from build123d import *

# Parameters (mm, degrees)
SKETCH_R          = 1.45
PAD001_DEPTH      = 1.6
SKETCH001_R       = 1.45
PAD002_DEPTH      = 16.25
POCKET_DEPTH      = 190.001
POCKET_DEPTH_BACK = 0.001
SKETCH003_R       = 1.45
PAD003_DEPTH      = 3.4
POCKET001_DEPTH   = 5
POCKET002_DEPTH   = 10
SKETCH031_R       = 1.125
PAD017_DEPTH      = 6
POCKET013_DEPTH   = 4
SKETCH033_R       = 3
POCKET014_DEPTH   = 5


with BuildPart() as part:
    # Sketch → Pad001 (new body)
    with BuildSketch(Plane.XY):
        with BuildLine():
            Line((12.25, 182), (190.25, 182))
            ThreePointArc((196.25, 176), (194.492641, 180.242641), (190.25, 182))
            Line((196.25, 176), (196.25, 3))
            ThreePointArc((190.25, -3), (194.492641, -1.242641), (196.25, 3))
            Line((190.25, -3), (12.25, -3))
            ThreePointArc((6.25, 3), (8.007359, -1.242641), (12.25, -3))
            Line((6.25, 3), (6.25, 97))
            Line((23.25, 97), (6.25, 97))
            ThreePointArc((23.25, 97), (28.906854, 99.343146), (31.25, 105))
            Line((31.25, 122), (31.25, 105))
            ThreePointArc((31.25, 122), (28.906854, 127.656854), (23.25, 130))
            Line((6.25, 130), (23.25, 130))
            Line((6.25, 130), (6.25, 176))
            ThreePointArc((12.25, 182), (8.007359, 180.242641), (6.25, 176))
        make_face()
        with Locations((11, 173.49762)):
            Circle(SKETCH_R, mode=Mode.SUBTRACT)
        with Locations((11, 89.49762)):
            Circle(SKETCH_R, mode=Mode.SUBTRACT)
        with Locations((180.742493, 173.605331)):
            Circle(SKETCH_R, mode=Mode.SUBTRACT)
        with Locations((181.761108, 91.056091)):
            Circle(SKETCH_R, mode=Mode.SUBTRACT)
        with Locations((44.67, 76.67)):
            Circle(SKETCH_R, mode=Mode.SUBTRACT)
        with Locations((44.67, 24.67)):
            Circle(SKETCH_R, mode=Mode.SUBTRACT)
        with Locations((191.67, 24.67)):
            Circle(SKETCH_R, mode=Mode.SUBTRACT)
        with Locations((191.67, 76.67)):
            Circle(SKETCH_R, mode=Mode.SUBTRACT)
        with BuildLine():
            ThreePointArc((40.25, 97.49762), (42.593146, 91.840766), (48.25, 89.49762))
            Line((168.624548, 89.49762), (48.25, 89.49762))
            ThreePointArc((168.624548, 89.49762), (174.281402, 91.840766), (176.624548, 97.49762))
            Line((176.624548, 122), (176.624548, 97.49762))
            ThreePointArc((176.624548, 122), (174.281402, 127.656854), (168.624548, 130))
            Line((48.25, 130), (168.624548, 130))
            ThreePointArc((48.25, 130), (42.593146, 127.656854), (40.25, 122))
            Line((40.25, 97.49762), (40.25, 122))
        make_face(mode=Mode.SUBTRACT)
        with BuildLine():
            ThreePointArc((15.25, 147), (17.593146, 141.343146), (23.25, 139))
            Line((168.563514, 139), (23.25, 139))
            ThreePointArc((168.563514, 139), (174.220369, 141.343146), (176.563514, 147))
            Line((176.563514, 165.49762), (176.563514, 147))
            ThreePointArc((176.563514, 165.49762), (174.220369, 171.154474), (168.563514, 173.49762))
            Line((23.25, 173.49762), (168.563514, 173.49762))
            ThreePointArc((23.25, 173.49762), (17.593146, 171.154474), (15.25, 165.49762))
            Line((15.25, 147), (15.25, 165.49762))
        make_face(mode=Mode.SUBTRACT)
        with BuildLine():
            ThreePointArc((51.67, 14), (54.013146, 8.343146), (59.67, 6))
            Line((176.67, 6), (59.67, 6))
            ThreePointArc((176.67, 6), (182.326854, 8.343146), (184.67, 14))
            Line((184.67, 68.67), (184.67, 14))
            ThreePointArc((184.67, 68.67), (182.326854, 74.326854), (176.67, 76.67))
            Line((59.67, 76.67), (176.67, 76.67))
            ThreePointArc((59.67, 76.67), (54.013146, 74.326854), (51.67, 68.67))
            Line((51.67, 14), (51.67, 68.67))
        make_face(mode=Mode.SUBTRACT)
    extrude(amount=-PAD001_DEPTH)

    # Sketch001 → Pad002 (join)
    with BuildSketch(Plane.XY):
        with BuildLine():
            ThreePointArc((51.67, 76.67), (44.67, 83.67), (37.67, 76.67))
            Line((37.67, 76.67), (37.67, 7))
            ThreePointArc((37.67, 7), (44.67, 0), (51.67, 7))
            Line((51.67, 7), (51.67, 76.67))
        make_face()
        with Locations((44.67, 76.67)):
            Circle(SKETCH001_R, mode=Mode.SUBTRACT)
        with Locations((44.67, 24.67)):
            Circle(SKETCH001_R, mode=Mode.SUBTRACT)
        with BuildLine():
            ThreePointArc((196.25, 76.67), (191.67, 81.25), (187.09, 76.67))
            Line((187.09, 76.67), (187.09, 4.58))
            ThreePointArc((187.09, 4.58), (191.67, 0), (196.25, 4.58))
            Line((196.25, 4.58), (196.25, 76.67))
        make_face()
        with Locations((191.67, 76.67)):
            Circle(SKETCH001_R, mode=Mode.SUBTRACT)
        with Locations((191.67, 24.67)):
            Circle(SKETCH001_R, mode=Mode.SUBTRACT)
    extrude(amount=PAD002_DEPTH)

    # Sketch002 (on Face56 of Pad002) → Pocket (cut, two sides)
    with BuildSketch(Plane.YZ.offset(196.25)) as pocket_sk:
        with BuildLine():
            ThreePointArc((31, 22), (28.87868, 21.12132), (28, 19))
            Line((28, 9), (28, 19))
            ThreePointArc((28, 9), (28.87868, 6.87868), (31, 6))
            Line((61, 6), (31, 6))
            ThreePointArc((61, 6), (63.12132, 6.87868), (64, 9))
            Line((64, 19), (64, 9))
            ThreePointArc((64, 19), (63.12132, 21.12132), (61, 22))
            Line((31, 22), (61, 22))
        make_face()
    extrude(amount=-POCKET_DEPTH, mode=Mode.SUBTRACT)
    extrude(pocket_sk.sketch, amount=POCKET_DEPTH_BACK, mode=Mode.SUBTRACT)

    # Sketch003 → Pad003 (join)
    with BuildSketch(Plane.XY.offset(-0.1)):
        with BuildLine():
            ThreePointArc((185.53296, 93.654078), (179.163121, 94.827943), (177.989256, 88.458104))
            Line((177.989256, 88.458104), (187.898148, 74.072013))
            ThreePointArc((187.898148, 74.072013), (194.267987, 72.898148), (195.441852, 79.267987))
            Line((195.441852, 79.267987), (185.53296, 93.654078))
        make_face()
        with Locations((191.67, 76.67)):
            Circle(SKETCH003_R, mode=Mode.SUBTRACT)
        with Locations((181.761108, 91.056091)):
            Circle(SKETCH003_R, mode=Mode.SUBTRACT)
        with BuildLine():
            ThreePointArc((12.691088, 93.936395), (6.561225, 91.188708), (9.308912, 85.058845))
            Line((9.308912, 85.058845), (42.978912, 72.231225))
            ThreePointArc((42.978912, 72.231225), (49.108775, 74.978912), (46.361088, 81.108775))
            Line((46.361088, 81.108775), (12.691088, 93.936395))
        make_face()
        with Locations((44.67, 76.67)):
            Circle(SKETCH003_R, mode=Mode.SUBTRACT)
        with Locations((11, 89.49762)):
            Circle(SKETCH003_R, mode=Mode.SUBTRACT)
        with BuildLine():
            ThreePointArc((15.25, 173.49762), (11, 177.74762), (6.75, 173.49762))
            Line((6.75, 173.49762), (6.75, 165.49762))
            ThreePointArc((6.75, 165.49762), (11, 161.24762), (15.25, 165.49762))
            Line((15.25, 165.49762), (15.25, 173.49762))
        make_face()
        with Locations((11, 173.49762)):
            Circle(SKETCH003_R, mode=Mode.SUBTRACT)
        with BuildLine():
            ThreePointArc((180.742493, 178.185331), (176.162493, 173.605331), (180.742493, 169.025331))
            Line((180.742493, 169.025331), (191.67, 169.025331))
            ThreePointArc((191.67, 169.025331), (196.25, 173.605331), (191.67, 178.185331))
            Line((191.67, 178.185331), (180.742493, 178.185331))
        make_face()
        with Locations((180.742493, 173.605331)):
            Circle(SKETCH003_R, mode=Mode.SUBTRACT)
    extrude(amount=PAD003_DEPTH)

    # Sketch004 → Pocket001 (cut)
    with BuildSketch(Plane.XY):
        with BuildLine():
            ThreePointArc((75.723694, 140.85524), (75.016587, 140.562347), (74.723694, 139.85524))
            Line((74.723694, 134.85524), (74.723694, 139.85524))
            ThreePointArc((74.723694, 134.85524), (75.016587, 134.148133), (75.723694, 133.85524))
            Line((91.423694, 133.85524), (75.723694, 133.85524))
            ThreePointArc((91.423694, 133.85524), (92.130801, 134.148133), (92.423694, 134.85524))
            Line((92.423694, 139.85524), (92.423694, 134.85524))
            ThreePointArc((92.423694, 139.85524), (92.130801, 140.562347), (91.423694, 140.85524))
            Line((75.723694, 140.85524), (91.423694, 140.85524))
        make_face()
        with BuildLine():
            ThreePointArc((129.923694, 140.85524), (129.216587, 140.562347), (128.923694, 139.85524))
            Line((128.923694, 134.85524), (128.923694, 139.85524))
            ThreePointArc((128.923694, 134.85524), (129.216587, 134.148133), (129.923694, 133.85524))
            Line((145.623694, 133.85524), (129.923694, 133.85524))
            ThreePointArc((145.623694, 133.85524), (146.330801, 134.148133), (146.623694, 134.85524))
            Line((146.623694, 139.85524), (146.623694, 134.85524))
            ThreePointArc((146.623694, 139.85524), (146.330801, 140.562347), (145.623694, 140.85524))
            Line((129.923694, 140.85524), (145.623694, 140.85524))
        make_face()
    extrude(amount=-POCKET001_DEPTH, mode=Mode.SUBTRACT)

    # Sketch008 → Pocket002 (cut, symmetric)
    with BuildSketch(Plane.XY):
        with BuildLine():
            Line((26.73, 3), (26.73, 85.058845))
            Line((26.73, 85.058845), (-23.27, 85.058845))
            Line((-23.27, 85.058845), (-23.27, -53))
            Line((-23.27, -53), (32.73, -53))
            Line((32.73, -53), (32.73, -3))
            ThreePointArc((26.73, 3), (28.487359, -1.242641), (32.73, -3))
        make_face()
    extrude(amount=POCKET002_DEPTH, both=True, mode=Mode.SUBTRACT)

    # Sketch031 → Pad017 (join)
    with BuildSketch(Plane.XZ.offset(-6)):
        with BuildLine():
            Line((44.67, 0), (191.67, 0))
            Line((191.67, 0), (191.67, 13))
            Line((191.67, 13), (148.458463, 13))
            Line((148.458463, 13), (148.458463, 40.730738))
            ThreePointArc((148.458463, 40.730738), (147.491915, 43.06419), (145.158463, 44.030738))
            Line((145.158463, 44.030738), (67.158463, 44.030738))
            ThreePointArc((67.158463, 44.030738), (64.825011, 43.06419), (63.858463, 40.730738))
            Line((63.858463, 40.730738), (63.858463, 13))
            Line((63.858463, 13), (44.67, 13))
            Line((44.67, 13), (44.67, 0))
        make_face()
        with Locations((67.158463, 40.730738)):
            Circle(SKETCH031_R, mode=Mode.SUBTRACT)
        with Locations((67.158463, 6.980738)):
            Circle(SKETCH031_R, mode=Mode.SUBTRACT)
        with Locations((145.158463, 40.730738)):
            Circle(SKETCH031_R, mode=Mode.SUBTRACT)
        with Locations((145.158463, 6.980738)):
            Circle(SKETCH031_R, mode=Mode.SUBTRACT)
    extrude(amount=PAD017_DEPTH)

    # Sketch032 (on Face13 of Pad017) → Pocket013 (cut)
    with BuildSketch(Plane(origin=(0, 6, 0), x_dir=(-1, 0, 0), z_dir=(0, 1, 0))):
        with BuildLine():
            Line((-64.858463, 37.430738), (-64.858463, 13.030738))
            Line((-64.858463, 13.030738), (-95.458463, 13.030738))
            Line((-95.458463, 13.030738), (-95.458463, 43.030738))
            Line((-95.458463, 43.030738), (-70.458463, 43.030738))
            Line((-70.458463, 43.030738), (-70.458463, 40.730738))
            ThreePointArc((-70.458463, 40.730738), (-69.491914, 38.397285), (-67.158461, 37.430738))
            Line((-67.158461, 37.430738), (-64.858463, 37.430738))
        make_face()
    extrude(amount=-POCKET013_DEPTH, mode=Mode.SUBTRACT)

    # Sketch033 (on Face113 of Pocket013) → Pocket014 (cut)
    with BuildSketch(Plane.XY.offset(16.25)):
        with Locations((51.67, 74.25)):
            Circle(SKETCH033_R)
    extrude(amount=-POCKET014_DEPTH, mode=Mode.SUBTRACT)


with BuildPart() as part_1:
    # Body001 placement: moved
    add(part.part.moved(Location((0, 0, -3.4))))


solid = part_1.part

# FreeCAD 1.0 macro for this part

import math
import FreeCAD as App
import Part
import Sketcher
from FreeCAD import Vector

doc = App.newDocument("Part")
body = doc.addObject("PartDesign::Body", "Body")

# Sketch on XY plane
sketch1 = doc.addObject("Sketcher::SketchObject", "Sketch")
body.addObject(sketch1)
sketch1.AttachmentSupport = (doc.XY_Plane, [""])
sketch1.MapMode = "FlatFace"
sketch1.addGeometry(Part.LineSegment(Vector(190.2, 182, 0), Vector(12.2, 182, 0)), False)
sketch1.addGeometry(Part.ArcOfCircle(Part.Circle(Vector(12.2, 176, 0), Vector(0, 0, 1), 6), math.radians(90), math.radians(180)), False)
sketch1.addGeometry(Part.LineSegment(Vector(6.2, 176, 0), Vector(6.2, 130, 0)), False)
sketch1.addGeometry(Part.LineSegment(Vector(6.2, 130, 0), Vector(23.2, 130, 0)), False)
sketch1.addGeometry(Part.ArcOfCircle(Part.Circle(Vector(23.2, 122, 0), Vector(0, 0, 1), 8), math.radians(0), math.radians(90)), False)
sketch1.addGeometry(Part.LineSegment(Vector(31.2, 122, 0), Vector(31.2, 105, 0)), False)
sketch1.addGeometry(Part.ArcOfCircle(Part.Circle(Vector(23.2, 105, 0), Vector(0, 0, 1), 8), math.radians(-90), math.radians(0)), False)
sketch1.addGeometry(Part.LineSegment(Vector(23.2, 97, 0), Vector(6.2, 97, 0)), False)
sketch1.addGeometry(Part.LineSegment(Vector(6.2, 97, 0), Vector(6.2, 3, 0)), False)
sketch1.addGeometry(Part.ArcOfCircle(Part.Circle(Vector(12.2, 3, 0), Vector(0, 0, 1), 6), math.radians(180), math.radians(270)), False)
sketch1.addGeometry(Part.LineSegment(Vector(12.2, -3, 0), Vector(190.2, -3, 0)), False)
sketch1.addGeometry(Part.ArcOfCircle(Part.Circle(Vector(190.3, 3, 0), Vector(0, 0, 1), 6), math.radians(-90), math.radians(0)), False)
sketch1.addGeometry(Part.LineSegment(Vector(196.2, 3, 0), Vector(196.2, 176, 0)), False)
sketch1.addGeometry(Part.ArcOfCircle(Part.Circle(Vector(190.3, 176, 0), Vector(0, 0, 1), 6), math.radians(0), math.radians(90)), False)
sketch1.addGeometry(Part.Circle(Vector(191.7, 24.7, 0), Vector(0, 0, 1), 1.4), False)
sketch1.addGeometry(Part.LineSegment(Vector(51.7, 14, 0), Vector(51.7, 68.7, 0)), False)
sketch1.addGeometry(Part.ArcOfCircle(Part.Circle(Vector(59.7, 68.7, 0), Vector(0, 0, 1), 8), math.radians(90), math.radians(180)), False)
sketch1.addGeometry(Part.LineSegment(Vector(59.7, 76.7, 0), Vector(176.7, 76.7, 0)), False)
sketch1.addGeometry(Part.ArcOfCircle(Part.Circle(Vector(176.7, 68.7, 0), Vector(0, 0, 1), 8), math.radians(0), math.radians(90)), False)
sketch1.addGeometry(Part.LineSegment(Vector(184.7, 68.7, 0), Vector(184.7, 14, 0)), False)
sketch1.addGeometry(Part.ArcOfCircle(Part.Circle(Vector(176.7, 14, 0), Vector(0, 0, 1), 8), math.radians(-90), math.radians(0)), False)
sketch1.addGeometry(Part.LineSegment(Vector(176.7, 6, 0), Vector(59.7, 6, 0)), False)
sketch1.addGeometry(Part.ArcOfCircle(Part.Circle(Vector(59.7, 14, 0), Vector(0, 0, 1), 8), math.radians(-180), math.radians(-90)), False)
sketch1.addGeometry(Part.Circle(Vector(191.7, 76.7, 0), Vector(0, 0, 1), 1.4), False)
sketch1.addGeometry(Part.Circle(Vector(44.7, 24.7, 0), Vector(0, 0, 1), 1.4), False)
sketch1.addGeometry(Part.Circle(Vector(44.7, 76.7, 0), Vector(0, 0, 1), 1.4), False)
sketch1.addGeometry(Part.Circle(Vector(11, 89.5, 0), Vector(0, 0, 1), 1.4), False)
sketch1.addGeometry(Part.Circle(Vector(181.8, 91.1, 0), Vector(0, 0, 1), 1.4), False)
sketch1.addGeometry(Part.LineSegment(Vector(40.2, 97.5, 0), Vector(40.2, 122, 0)), False)
sketch1.addGeometry(Part.ArcOfCircle(Part.Circle(Vector(48.3, 122, 0), Vector(0, 0, 1), 8), math.radians(90), math.radians(180)), False)
sketch1.addGeometry(Part.LineSegment(Vector(48.2, 130, 0), Vector(168.6, 130, 0)), False)
sketch1.addGeometry(Part.ArcOfCircle(Part.Circle(Vector(168.6, 122, 0), Vector(0, 0, 1), 8), math.radians(0), math.radians(90)), False)
sketch1.addGeometry(Part.LineSegment(Vector(176.6, 122, 0), Vector(176.6, 97.5, 0)), False)
sketch1.addGeometry(Part.ArcOfCircle(Part.Circle(Vector(168.6, 97.5, 0), Vector(0, 0, 1), 8), math.radians(-90), math.radians(0)), False)
sketch1.addGeometry(Part.LineSegment(Vector(168.6, 89.5, 0), Vector(48.2, 89.5, 0)), False)
sketch1.addGeometry(Part.ArcOfCircle(Part.Circle(Vector(48.3, 97.5, 0), Vector(0, 0, 1), 8), math.radians(-180), math.radians(-90)), False)
sketch1.addGeometry(Part.Circle(Vector(180.7, 173.6, 0), Vector(0, 0, 1), 1.4), False)
sketch1.addGeometry(Part.LineSegment(Vector(15.2, 147, 0), Vector(15.2, 165.5, 0)), False)
sketch1.addGeometry(Part.ArcOfCircle(Part.Circle(Vector(23.3, 165.5, 0), Vector(0, 0, 1), 8), math.radians(90), math.radians(180)), False)
sketch1.addGeometry(Part.LineSegment(Vector(23.2, 173.5, 0), Vector(168.6, 173.5, 0)), False)
sketch1.addGeometry(Part.ArcOfCircle(Part.Circle(Vector(168.6, 165.5, 0), Vector(0, 0, 1), 8), math.radians(0), math.radians(90)), False)
sketch1.addGeometry(Part.LineSegment(Vector(176.6, 165.5, 0), Vector(176.6, 147, 0)), False)
sketch1.addGeometry(Part.ArcOfCircle(Part.Circle(Vector(168.6, 147, 0), Vector(0, 0, 1), 8), math.radians(-90), math.radians(0)), False)
sketch1.addGeometry(Part.LineSegment(Vector(168.6, 139, 0), Vector(23.2, 139, 0)), False)
sketch1.addGeometry(Part.ArcOfCircle(Part.Circle(Vector(23.3, 147, 0), Vector(0, 0, 1), 8), math.radians(-180), math.radians(-90)), False)
sketch1.addGeometry(Part.Circle(Vector(11, 173.5, 0), Vector(0, 0, 1), 1.4), False)
sketch1.addConstraint(Sketcher.Constraint("Tangent", 0, 2, 1, 1))
sketch1.addConstraint(Sketcher.Constraint("Tangent", 1, 2, 2, 1))
sketch1.addConstraint(Sketcher.Constraint("Coincident", 2, 2, 3, 1))
sketch1.addConstraint(Sketcher.Constraint("Tangent", 3, 2, 4, 2))
sketch1.addConstraint(Sketcher.Constraint("Tangent", 4, 1, 5, 1))
sketch1.addConstraint(Sketcher.Constraint("Tangent", 5, 2, 6, 2))
sketch1.addConstraint(Sketcher.Constraint("Tangent", 6, 1, 7, 1))
sketch1.addConstraint(Sketcher.Constraint("Coincident", 7, 2, 8, 1))
sketch1.addConstraint(Sketcher.Constraint("Tangent", 8, 2, 9, 1))
sketch1.addConstraint(Sketcher.Constraint("Tangent", 9, 2, 10, 1))
sketch1.addConstraint(Sketcher.Constraint("Tangent", 10, 2, 11, 1))
sketch1.addConstraint(Sketcher.Constraint("Tangent", 11, 2, 12, 1))
sketch1.addConstraint(Sketcher.Constraint("Tangent", 12, 2, 13, 1))
sketch1.addConstraint(Sketcher.Constraint("Tangent", 13, 2, 0, 1))
sketch1.addConstraint(Sketcher.Constraint("Tangent", 15, 2, 16, 2))
sketch1.addConstraint(Sketcher.Constraint("Tangent", 16, 1, 17, 1))
sketch1.addConstraint(Sketcher.Constraint("Tangent", 17, 2, 18, 2))
sketch1.addConstraint(Sketcher.Constraint("Tangent", 18, 1, 19, 1))
sketch1.addConstraint(Sketcher.Constraint("Tangent", 19, 2, 20, 2))
sketch1.addConstraint(Sketcher.Constraint("Tangent", 20, 1, 21, 1))
sketch1.addConstraint(Sketcher.Constraint("Tangent", 21, 2, 22, 2))
sketch1.addConstraint(Sketcher.Constraint("Tangent", 22, 1, 15, 1))
sketch1.addConstraint(Sketcher.Constraint("Tangent", 28, 2, 29, 2))
sketch1.addConstraint(Sketcher.Constraint("Tangent", 29, 1, 30, 1))
sketch1.addConstraint(Sketcher.Constraint("Tangent", 30, 2, 31, 2))
sketch1.addConstraint(Sketcher.Constraint("Tangent", 31, 1, 32, 1))
sketch1.addConstraint(Sketcher.Constraint("Tangent", 32, 2, 33, 2))
sketch1.addConstraint(Sketcher.Constraint("Tangent", 33, 1, 34, 1))
sketch1.addConstraint(Sketcher.Constraint("Tangent", 34, 2, 35, 2))
sketch1.addConstraint(Sketcher.Constraint("Tangent", 35, 1, 28, 1))
sketch1.addConstraint(Sketcher.Constraint("Tangent", 37, 2, 38, 2))
sketch1.addConstraint(Sketcher.Constraint("Tangent", 38, 1, 39, 1))
sketch1.addConstraint(Sketcher.Constraint("Tangent", 39, 2, 40, 2))
sketch1.addConstraint(Sketcher.Constraint("Tangent", 40, 1, 41, 1))
sketch1.addConstraint(Sketcher.Constraint("Tangent", 41, 2, 42, 2))
sketch1.addConstraint(Sketcher.Constraint("Tangent", 42, 1, 43, 1))
sketch1.addConstraint(Sketcher.Constraint("Tangent", 43, 2, 44, 2))
sketch1.addConstraint(Sketcher.Constraint("Tangent", 44, 1, 37, 1))
sketch1.addConstraint(Sketcher.Constraint("Horizontal", 0))
sketch1.addConstraint(Sketcher.Constraint("Vertical", 2))
sketch1.addConstraint(Sketcher.Constraint("Horizontal", 3))
sketch1.addConstraint(Sketcher.Constraint("Vertical", 5))
sketch1.addConstraint(Sketcher.Constraint("Horizontal", 7))
sketch1.addConstraint(Sketcher.Constraint("Vertical", 8))
sketch1.addConstraint(Sketcher.Constraint("Horizontal", 10))
sketch1.addConstraint(Sketcher.Constraint("Vertical", 12))
sketch1.addConstraint(Sketcher.Constraint("Vertical", 15))
sketch1.addConstraint(Sketcher.Constraint("Horizontal", 17))
sketch1.addConstraint(Sketcher.Constraint("Vertical", 19))
sketch1.addConstraint(Sketcher.Constraint("Horizontal", 21))
sketch1.addConstraint(Sketcher.Constraint("Vertical", 28))
sketch1.addConstraint(Sketcher.Constraint("Horizontal", 30))
sketch1.addConstraint(Sketcher.Constraint("Vertical", 32))
sketch1.addConstraint(Sketcher.Constraint("Horizontal", 34))
sketch1.addConstraint(Sketcher.Constraint("Vertical", 37))
sketch1.addConstraint(Sketcher.Constraint("Horizontal", 39))
sketch1.addConstraint(Sketcher.Constraint("Vertical", 41))
sketch1.addConstraint(Sketcher.Constraint("Horizontal", 43))
sketch1.addConstraint(Sketcher.Constraint("Equal", 4, 6))
sketch1.addConstraint(Sketcher.Constraint("Equal", 1, 9))
sketch1.addConstraint(Sketcher.Constraint("Equal", 9, 11))
sketch1.addConstraint(Sketcher.Constraint("Equal", 11, 13))
sketch1.addConstraint(Sketcher.Constraint("Equal", 6, 16))
sketch1.addConstraint(Sketcher.Constraint("Equal", 16, 18))
sketch1.addConstraint(Sketcher.Constraint("Equal", 18, 20))
sketch1.addConstraint(Sketcher.Constraint("Equal", 20, 22))
sketch1.addConstraint(Sketcher.Constraint("Equal", 14, 23))
sketch1.addConstraint(Sketcher.Constraint("Equal", 23, 24))
sketch1.addConstraint(Sketcher.Constraint("Equal", 24, 25))
sketch1.addConstraint(Sketcher.Constraint("Equal", 25, 26))
sketch1.addConstraint(Sketcher.Constraint("Equal", 26, 27))
sketch1.addConstraint(Sketcher.Constraint("Equal", 22, 29))
sketch1.addConstraint(Sketcher.Constraint("Equal", 29, 31))
sketch1.addConstraint(Sketcher.Constraint("Equal", 31, 33))
sketch1.addConstraint(Sketcher.Constraint("Equal", 33, 35))
sketch1.addConstraint(Sketcher.Constraint("Equal", 27, 36))
sketch1.addConstraint(Sketcher.Constraint("Equal", 35, 38))
sketch1.addConstraint(Sketcher.Constraint("Equal", 38, 40))
sketch1.addConstraint(Sketcher.Constraint("Equal", 40, 42))
sketch1.addConstraint(Sketcher.Constraint("Equal", 42, 44))
sketch1.addConstraint(Sketcher.Constraint("Equal", 36, 45))
sketch1.addConstraint(Sketcher.Constraint("Horizontal", 14, 3, 24, 3))
sketch1.addConstraint(Sketcher.Constraint("Horizontal", 23, 3, 25, 3))
sketch1.addConstraint(Sketcher.Constraint("Horizontal", 4, 3, 29, 3))
sketch1.addConstraint(Sketcher.Constraint("Horizontal", 25, 3, 16, 1))
sketch1.addConstraint(Sketcher.Constraint("Horizontal", 26, 3, 33, 1))
sketch1.addConstraint(Sketcher.Constraint("Horizontal", 45, 3, 38, 1))
sketch1.addConstraint(Sketcher.Constraint("Vertical", 1, 3, 9, 3))
sketch1.addConstraint(Sketcher.Constraint("Vertical", 14, 3, 23, 3))
sketch1.addConstraint(Sketcher.Constraint("Vertical", 24, 3, 25, 3))
sketch1.addConstraint(Sketcher.Constraint("Vertical", 6, 3, 38, 3))
sketch1.addConstraint(Sketcher.Constraint("Vertical", 26, 3, 45, 3))
sketch1.addConstraint(Sketcher.Constraint("Equal", 7, 5))
sketch1.addConstraint(Sketcher.Constraint("Radius", 1, 5.999999))
sketch1.addConstraint(Sketcher.Constraint("Radius", 4, 8.000001))
sketch1.addConstraint(Sketcher.Constraint("Diameter", 14, 2.9))
sketch1.addConstraint(Sketcher.Constraint("DistanceX", 0, 2, 0, 1, 178.0))
sketch1.addConstraint(Sketcher.Constraint("DistanceX", 3, 1, 3, 2, 17.0))
sketch1.addConstraint(Sketcher.Constraint("DistanceX", 17, 1, 17, 2, 117.0))
sketch1.addConstraint(Sketcher.Constraint("DistanceY", 2, 2, 2, 1, 46.0))
sketch1.addConstraint(Sketcher.Constraint("DistanceY", 8, 2, 8, 1, 94.0))
sketch1.addConstraint(Sketcher.Constraint("DistanceY", -1, 1, 1, 3, 176.000001))
sketch1.addConstraint(Sketcher.Constraint("DistanceY", -1, 1, 20, 3, 14.000001))
sketch1.addConstraint(Sketcher.Constraint("DistanceX", -1, 1, 26, 3, 11.0))
sketch1.addConstraint(Sketcher.Constraint("DistanceY", -1, 1, 42, 3, 146.999999))
sketch1.addConstraint(Sketcher.Constraint("DistanceY", 15, 1, 15, 2, 54.67))
sketch1.addConstraint(Sketcher.Constraint("DistanceX", -1, 1, 1, 3, 12.249999))
sketch1.addConstraint(Sketcher.Constraint("DistanceX", -1, 1, 14, 3, 191.67))
sketch1.addConstraint(Sketcher.Constraint("DistanceY", -1, 1, 14, 3, 24.67))
sketch1.addConstraint(Sketcher.Constraint("DistanceX", -1, 1, 16, 3, 59.670001))
sketch1.addConstraint(Sketcher.Constraint("DistanceX", -1, 1, 24, 3, 44.67))
sketch1.addConstraint(Sketcher.Constraint("DistanceX", -1, 1, 29, 3, 48.250001))
sketch1.addConstraint(Sketcher.Constraint("DistanceX", 30, 1, 30, 2, 120.374548))
sketch1.addConstraint(Sketcher.Constraint("DistanceY", 28, 1, 28, 2, 24.50238))
sketch1.addConstraint(Sketcher.Constraint("DistanceY", 37, 1, 37, 2, 18.49762))
sketch1.addConstraint(Sketcher.Constraint("DistanceX", 39, 1, 39, 2, 145.313514))
sketch1.addConstraint(Sketcher.Constraint("DistanceX", -1, 1, 27, 3, 181.761108))
sketch1.addConstraint(Sketcher.Constraint("DistanceY", -1, 1, 27, 3, 91.056091))
sketch1.addConstraint(Sketcher.Constraint("DistanceY", -1, 1, 36, 3, 173.605331))
sketch1.addConstraint(Sketcher.Constraint("DistanceX", -1, 1, 36, 3, 180.742493))
pad1 = doc.addObject("PartDesign::Pad", "Pad")
body.addObject(pad1)
pad1.Profile = sketch1
pad1.Length = 1.6
pad1.Reversed = True

# Sketch on XY plane
sketch2 = doc.addObject("Sketcher::SketchObject", "Sketch001")
body.addObject(sketch2)
sketch2.AttachmentSupport = (doc.XY_Plane, [""])
sketch2.MapMode = "FlatFace"
sketch2.addGeometry(Part.ArcOfCircle(Part.Circle(Vector(44.7, 76.7, 0), Vector(0, 0, 1), 7), math.radians(0), math.radians(180)), False)
sketch2.addGeometry(Part.LineSegment(Vector(37.7, 76.7, 0), Vector(37.7, 7, 0)), False)
sketch2.addGeometry(Part.ArcOfCircle(Part.Circle(Vector(44.7, 7, 0), Vector(0, 0, 1), 7), math.radians(180), math.radians(360)), False)
sketch2.addGeometry(Part.LineSegment(Vector(51.7, 7, 0), Vector(51.7, 76.7, 0)), False)
sketch2.addGeometry(Part.Circle(Vector(44.7, 24.7, 0), Vector(0, 0, 1), 1.4), False)
sketch2.addGeometry(Part.Circle(Vector(44.7, 76.7, 0), Vector(0, 0, 1), 1.4), False)
sketch2.addGeometry(Part.ArcOfCircle(Part.Circle(Vector(191.7, 76.7, 0), Vector(0, 0, 1), 4.6), math.radians(0), math.radians(180)), False)
sketch2.addGeometry(Part.LineSegment(Vector(187.1, 76.7, 0), Vector(187.1, 4.6, 0)), False)
sketch2.addGeometry(Part.ArcOfCircle(Part.Circle(Vector(191.7, 4.6, 0), Vector(0, 0, 1), 4.6), math.radians(180), math.radians(360)), False)
sketch2.addGeometry(Part.LineSegment(Vector(196.2, 4.6, 0), Vector(196.2, 76.7, 0)), False)
sketch2.addGeometry(Part.Circle(Vector(191.7, 24.7, 0), Vector(0, 0, 1), 1.4), False)
sketch2.addGeometry(Part.Circle(Vector(191.7, 76.7, 0), Vector(0, 0, 1), 1.4), False)
sketch2.addConstraint(Sketcher.Constraint("Tangent", 0, 2, 1, 1))
sketch2.addConstraint(Sketcher.Constraint("Tangent", 1, 2, 2, 1))
sketch2.addConstraint(Sketcher.Constraint("Tangent", 2, 2, 3, 1))
sketch2.addConstraint(Sketcher.Constraint("Tangent", 3, 2, 0, 1))
sketch2.addConstraint(Sketcher.Constraint("Tangent", 6, 2, 7, 1))
sketch2.addConstraint(Sketcher.Constraint("Tangent", 7, 2, 8, 1))
sketch2.addConstraint(Sketcher.Constraint("Tangent", 8, 2, 9, 1))
sketch2.addConstraint(Sketcher.Constraint("Tangent", 9, 2, 6, 1))
sketch2.addConstraint(Sketcher.Constraint("Vertical", 1))
sketch2.addConstraint(Sketcher.Constraint("Vertical", 3))
sketch2.addConstraint(Sketcher.Constraint("Vertical", 7))
sketch2.addConstraint(Sketcher.Constraint("Vertical", 9))
sketch2.addConstraint(Sketcher.Constraint("Coincident", 5, 3, 0, 3))
sketch2.addConstraint(Sketcher.Constraint("Coincident", 11, 3, 6, 3))
sketch2.addConstraint(Sketcher.Constraint("Equal", 4, 5))
sketch2.addConstraint(Sketcher.Constraint("Equal", 5, 10))
sketch2.addConstraint(Sketcher.Constraint("Equal", 10, 11))
sketch2.addConstraint(Sketcher.Constraint("Horizontal", 5, 3, 6, 3))
sketch2.addConstraint(Sketcher.Constraint("Horizontal", 4, 3, 10, 3))
sketch2.addConstraint(Sketcher.Constraint("Vertical", 2, 3, 4, 3))
sketch2.addConstraint(Sketcher.Constraint("Vertical", 8, 3, 10, 3))
sketch2.addConstraint(Sketcher.Constraint("Radius", 0, 7.0))
sketch2.addConstraint(Sketcher.Constraint("Diameter", 4, 2.9))
sketch2.addConstraint(Sketcher.Constraint("Radius", 6, 4.58))
sketch2.addConstraint(Sketcher.Constraint("DistanceY", -1, 1, 2, 3, 7.0))
sketch2.addConstraint(Sketcher.Constraint("DistanceY", 4, 3, 0, 3, 52.0))
sketch2.addConstraint(Sketcher.Constraint("DistanceX", 0, 3, 6, 3, 147.0))
sketch2.addConstraint(Sketcher.Constraint("DistanceY", 1, 2, 1, 1, 69.67))
sketch2.addConstraint(Sketcher.Constraint("DistanceY", 7, 2, 7, 1, 72.09))
sketch2.addConstraint(Sketcher.Constraint("DistanceX", -1, 1, 0, 3, 44.67))
pad2 = doc.addObject("PartDesign::Pad", "Pad001")
body.addObject(pad2)
pad2.Profile = sketch2
pad2.Length = 16.25

# Sketch on YZ plane
sketch3 = doc.addObject("Sketcher::SketchObject", "Sketch002")
body.addObject(sketch3)
sketch3.AttachmentSupport = (doc.YZ_Plane, [""])
sketch3.MapMode = "FlatFace"
sketch3.AttachmentOffset = App.Placement(Vector(0, 0, 196.25), App.Rotation())
sketch3.addGeometry(Part.ArcOfCircle(Part.Circle(Vector(31, 19, 0), Vector(0, 0, 1), 3), math.radians(90), math.radians(180)), False)
sketch3.addGeometry(Part.LineSegment(Vector(28, 19, 0), Vector(28, 9, 0)), False)
sketch3.addGeometry(Part.ArcOfCircle(Part.Circle(Vector(31, 9, 0), Vector(0, 0, 1), 3), math.radians(-180), math.radians(-90)), False)
sketch3.addGeometry(Part.LineSegment(Vector(31, 6, 0), Vector(61, 6, 0)), False)
sketch3.addGeometry(Part.ArcOfCircle(Part.Circle(Vector(61, 9, 0), Vector(0, 0, 1), 3), math.radians(-90), math.radians(0)), False)
sketch3.addGeometry(Part.LineSegment(Vector(64, 9, 0), Vector(64, 19, 0)), False)
sketch3.addGeometry(Part.ArcOfCircle(Part.Circle(Vector(61, 19, 0), Vector(0, 0, 1), 3), math.radians(0), math.radians(90)), False)
sketch3.addGeometry(Part.LineSegment(Vector(61, 22, 0), Vector(31, 22, 0)), False)
sketch3.addConstraint(Sketcher.Constraint("Tangent", 0, 2, 1, 1))
sketch3.addConstraint(Sketcher.Constraint("Tangent", 1, 2, 2, 1))
sketch3.addConstraint(Sketcher.Constraint("Tangent", 2, 2, 3, 1))
sketch3.addConstraint(Sketcher.Constraint("Tangent", 3, 2, 4, 1))
sketch3.addConstraint(Sketcher.Constraint("Tangent", 4, 2, 5, 1))
sketch3.addConstraint(Sketcher.Constraint("Tangent", 5, 2, 6, 1))
sketch3.addConstraint(Sketcher.Constraint("Tangent", 6, 2, 7, 1))
sketch3.addConstraint(Sketcher.Constraint("Tangent", 7, 2, 0, 1))
sketch3.addConstraint(Sketcher.Constraint("Vertical", 1))
sketch3.addConstraint(Sketcher.Constraint("Horizontal", 3))
sketch3.addConstraint(Sketcher.Constraint("Vertical", 5))
sketch3.addConstraint(Sketcher.Constraint("Horizontal", 7))
sketch3.addConstraint(Sketcher.Constraint("Equal", 0, 2))
sketch3.addConstraint(Sketcher.Constraint("Equal", 2, 4))
sketch3.addConstraint(Sketcher.Constraint("Equal", 4, 6))
sketch3.addConstraint(Sketcher.Constraint("Radius", 0, 3.000001))
sketch3.addConstraint(Sketcher.Constraint("DistanceX", 3, 1, 3, 2, 30.0))
sketch3.addConstraint(Sketcher.Constraint("DistanceY", 1, 2, 1, 1, 10.0))
sketch3.addConstraint(Sketcher.Constraint("DistanceX", -1, 1, 0, 3, 31.000001))
sketch3.addConstraint(Sketcher.Constraint("DistanceY", -1, 1, 0, 3, 18.999999))
pocket1 = doc.addObject("PartDesign::Pocket", "Pocket")
body.addObject(pocket1)
pocket1.Profile = sketch3
pocket1.Type = "ThroughAll"
pocket1.Midplane = True

# Sketch on XY plane
sketch4 = doc.addObject("Sketcher::SketchObject", "Sketch003")
body.addObject(sketch4)
sketch4.AttachmentSupport = (doc.XY_Plane, [""])
sketch4.MapMode = "FlatFace"
sketch4.AttachmentOffset = App.Placement(Vector(0, 0, -0.1), App.Rotation())
sketch4.addGeometry(Part.ArcOfCircle(Part.Circle(Vector(181.8, 91.1, 0), Vector(0, 0, 1), 4.6), math.radians(35), math.radians(215)), False)
sketch4.addGeometry(Part.LineSegment(Vector(178, 88.5, 0), Vector(187.9, 74.1, 0)), False)
sketch4.addGeometry(Part.ArcOfCircle(Part.Circle(Vector(191.7, 76.7, 0), Vector(0, 0, 1), 4.6), math.radians(-145), math.radians(35)), False)
sketch4.addGeometry(Part.LineSegment(Vector(195.4, 79.3, 0), Vector(185.5, 93.7, 0)), False)
sketch4.addGeometry(Part.Circle(Vector(191.7, 76.7, 0), Vector(0, 0, 1), 1.4), False)
sketch4.addGeometry(Part.Circle(Vector(181.8, 91.1, 0), Vector(0, 0, 1), 1.4), False)
sketch4.addGeometry(Part.ArcOfCircle(Part.Circle(Vector(11, 89.5, 0), Vector(0, 0, 1), 4.8), math.radians(69), math.radians(249)), False)
sketch4.addGeometry(Part.LineSegment(Vector(9.3, 85.1, 0), Vector(43, 72.2, 0)), False)
sketch4.addGeometry(Part.ArcOfCircle(Part.Circle(Vector(44.7, 76.7, 0), Vector(0, 0, 1), 4.8), math.radians(-111), math.radians(69)), False)
sketch4.addGeometry(Part.LineSegment(Vector(46.4, 81.1, 0), Vector(12.7, 93.9, 0)), False)
sketch4.addGeometry(Part.Circle(Vector(44.7, 76.7, 0), Vector(0, 0, 1), 1.4), False)
sketch4.addGeometry(Part.Circle(Vector(11, 89.5, 0), Vector(0, 0, 1), 1.4), False)
sketch4.addGeometry(Part.ArcOfCircle(Part.Circle(Vector(11, 173.5, 0), Vector(0, 0, 1), 4.2), math.radians(0), math.radians(180)), False)
sketch4.addGeometry(Part.LineSegment(Vector(6.8, 173.5, 0), Vector(6.8, 165.5, 0)), False)
sketch4.addGeometry(Part.ArcOfCircle(Part.Circle(Vector(11, 165.5, 0), Vector(0, 0, 1), 4.2), math.radians(180), math.radians(360)), False)
sketch4.addGeometry(Part.LineSegment(Vector(15.2, 165.5, 0), Vector(15.2, 173.5, 0)), False)
sketch4.addGeometry(Part.Circle(Vector(11, 173.5, 0), Vector(0, 0, 1), 1.4), False)
sketch4.addGeometry(Part.ArcOfCircle(Part.Circle(Vector(180.7, 173.6, 0), Vector(0, 0, 1), 4.6), math.radians(90), math.radians(270)), False)
sketch4.addGeometry(Part.LineSegment(Vector(180.7, 169, 0), Vector(191.7, 169, 0)), False)
sketch4.addGeometry(Part.ArcOfCircle(Part.Circle(Vector(191.7, 173.6, 0), Vector(0, 0, 1), 4.6), math.radians(-90), math.radians(90)), False)
sketch4.addGeometry(Part.LineSegment(Vector(191.7, 178.2, 0), Vector(180.7, 178.2, 0)), False)
sketch4.addGeometry(Part.Circle(Vector(180.7, 173.6, 0), Vector(0, 0, 1), 1.4), False)
sketch4.addConstraint(Sketcher.Constraint("Tangent", 0, 2, 1, 1))
sketch4.addConstraint(Sketcher.Constraint("Tangent", 1, 2, 2, 1))
sketch4.addConstraint(Sketcher.Constraint("Tangent", 2, 2, 3, 1))
sketch4.addConstraint(Sketcher.Constraint("Tangent", 3, 2, 0, 1))
sketch4.addConstraint(Sketcher.Constraint("Tangent", 6, 2, 7, 1))
sketch4.addConstraint(Sketcher.Constraint("Tangent", 7, 2, 8, 1))
sketch4.addConstraint(Sketcher.Constraint("Tangent", 8, 2, 9, 1))
sketch4.addConstraint(Sketcher.Constraint("Tangent", 9, 2, 6, 1))
sketch4.addConstraint(Sketcher.Constraint("Tangent", 12, 2, 13, 1))
sketch4.addConstraint(Sketcher.Constraint("Tangent", 13, 2, 14, 1))
sketch4.addConstraint(Sketcher.Constraint("Tangent", 14, 2, 15, 1))
sketch4.addConstraint(Sketcher.Constraint("Tangent", 15, 2, 12, 1))
sketch4.addConstraint(Sketcher.Constraint("Tangent", 17, 2, 18, 1))
sketch4.addConstraint(Sketcher.Constraint("Tangent", 18, 2, 19, 1))
sketch4.addConstraint(Sketcher.Constraint("Tangent", 19, 2, 20, 1))
sketch4.addConstraint(Sketcher.Constraint("Tangent", 20, 2, 17, 1))
sketch4.addConstraint(Sketcher.Constraint("Vertical", 13))
sketch4.addConstraint(Sketcher.Constraint("Vertical", 15))
sketch4.addConstraint(Sketcher.Constraint("Horizontal", 18))
sketch4.addConstraint(Sketcher.Constraint("Horizontal", 20))
sketch4.addConstraint(Sketcher.Constraint("Coincident", 4, 3, 2, 3))
sketch4.addConstraint(Sketcher.Constraint("Coincident", 5, 3, 0, 3))
sketch4.addConstraint(Sketcher.Constraint("Coincident", 10, 3, 8, 3))
sketch4.addConstraint(Sketcher.Constraint("Coincident", 11, 3, 6, 3))
sketch4.addConstraint(Sketcher.Constraint("Coincident", 16, 3, 12, 3))
sketch4.addConstraint(Sketcher.Constraint("Coincident", 21, 3, 17, 3))
sketch4.addConstraint(Sketcher.Constraint("Equal", 0, 2))
sketch4.addConstraint(Sketcher.Constraint("Equal", 4, 5))
sketch4.addConstraint(Sketcher.Constraint("Equal", 6, 8))
sketch4.addConstraint(Sketcher.Constraint("Equal", 5, 10))
sketch4.addConstraint(Sketcher.Constraint("Equal", 10, 11))
sketch4.addConstraint(Sketcher.Constraint("Equal", 11, 16))
sketch4.addConstraint(Sketcher.Constraint("Equal", 2, 17))
sketch4.addConstraint(Sketcher.Constraint("Equal", 16, 21))
sketch4.addConstraint(Sketcher.Constraint("Horizontal", 4, 3, 8, 3))
sketch4.addConstraint(Sketcher.Constraint("Vertical", 11, 3, 12, 3))
sketch4.addConstraint(Sketcher.Constraint("Vertical", 4, 3, 19, 3))
sketch4.addConstraint(Sketcher.Constraint("Diameter", 4, 2.9))
sketch4.addConstraint(Sketcher.Constraint("DistanceY", 13, 2, 13, 1, 8.0))
sketch4.addConstraint(Sketcher.Constraint("Radius", 0, 4.58))
sketch4.addConstraint(Sketcher.Constraint("Radius", 6, 4.75))
sketch4.addConstraint(Sketcher.Constraint("Radius", 12, 4.25))
sketch4.addConstraint(Sketcher.Constraint("DistanceX", -1, 1, 6, 3, 11.0))
sketch4.addConstraint(Sketcher.Constraint("DistanceX", 8, 3, 2, 3, 147.0))
sketch4.addConstraint(Sketcher.Constraint("DistanceY", 6, 3, 12, 3, 84.0))
sketch4.addConstraint(Sketcher.Constraint("DistanceX", -1, 1, 2, 3, 191.67))
sketch4.addConstraint(Sketcher.Constraint("DistanceY", -1, 1, 2, 3, 76.67))
sketch4.addConstraint(Sketcher.Constraint("Distance", 1, 17.468422))
sketch4.addConstraint(Sketcher.Constraint("DistanceX", 18, 1, 18, 2, 10.927507))
sketch4.addConstraint(Sketcher.Constraint("DistanceX", -1, 1, 0, 3, 181.761108))
sketch4.addConstraint(Sketcher.Constraint("DistanceY", -1, 1, 6, 3, 89.49762))
sketch4.addConstraint(Sketcher.Constraint("DistanceY", -1, 1, 17, 3, 173.605331))
pad3 = doc.addObject("PartDesign::Pad", "Pad002")
body.addObject(pad3)
pad3.Profile = sketch4
pad3.Length = 3.4

# Sketch on XY plane
sketch5 = doc.addObject("Sketcher::SketchObject", "Sketch004")
body.addObject(sketch5)
sketch5.AttachmentSupport = (doc.XY_Plane, [""])
sketch5.MapMode = "FlatFace"
sketch5.addGeometry(Part.ArcOfCircle(Part.Circle(Vector(75.7, 139.9, 0), Vector(0, 0, 1), 1), math.radians(90), math.radians(180)), False)
sketch5.addGeometry(Part.LineSegment(Vector(74.7, 139.9, 0), Vector(74.7, 134.9, 0)), False)
sketch5.addGeometry(Part.ArcOfCircle(Part.Circle(Vector(75.7, 134.9, 0), Vector(0, 0, 1), 1), math.radians(180), math.radians(270)), False)
sketch5.addGeometry(Part.LineSegment(Vector(75.7, 133.9, 0), Vector(91.4, 133.9, 0)), False)
sketch5.addGeometry(Part.ArcOfCircle(Part.Circle(Vector(91.4, 134.9, 0), Vector(0, 0, 1), 1), math.radians(-90), math.radians(0)), False)
sketch5.addGeometry(Part.LineSegment(Vector(92.4, 134.9, 0), Vector(92.4, 139.9, 0)), False)
sketch5.addGeometry(Part.ArcOfCircle(Part.Circle(Vector(91.4, 139.9, 0), Vector(0, 0, 1), 1), math.radians(0), math.radians(90)), False)
sketch5.addGeometry(Part.LineSegment(Vector(91.4, 140.9, 0), Vector(75.7, 140.9, 0)), False)
sketch5.addGeometry(Part.ArcOfCircle(Part.Circle(Vector(129.9, 139.9, 0), Vector(0, 0, 1), 1), math.radians(90), math.radians(180)), False)
sketch5.addGeometry(Part.LineSegment(Vector(128.9, 139.9, 0), Vector(128.9, 134.9, 0)), False)
sketch5.addGeometry(Part.ArcOfCircle(Part.Circle(Vector(129.9, 134.9, 0), Vector(0, 0, 1), 1), math.radians(180), math.radians(270)), False)
sketch5.addGeometry(Part.LineSegment(Vector(129.9, 133.9, 0), Vector(145.6, 133.9, 0)), False)
sketch5.addGeometry(Part.ArcOfCircle(Part.Circle(Vector(145.6, 134.9, 0), Vector(0, 0, 1), 1), math.radians(-90), math.radians(0)), False)
sketch5.addGeometry(Part.LineSegment(Vector(146.6, 134.9, 0), Vector(146.6, 139.9, 0)), False)
sketch5.addGeometry(Part.ArcOfCircle(Part.Circle(Vector(145.6, 139.9, 0), Vector(0, 0, 1), 1), math.radians(0), math.radians(90)), False)
sketch5.addGeometry(Part.LineSegment(Vector(145.6, 140.9, 0), Vector(129.9, 140.9, 0)), False)
sketch5.addConstraint(Sketcher.Constraint("Tangent", 0, 2, 1, 1))
sketch5.addConstraint(Sketcher.Constraint("Tangent", 1, 2, 2, 1))
sketch5.addConstraint(Sketcher.Constraint("Tangent", 2, 2, 3, 1))
sketch5.addConstraint(Sketcher.Constraint("Tangent", 3, 2, 4, 1))
sketch5.addConstraint(Sketcher.Constraint("Tangent", 4, 2, 5, 1))
sketch5.addConstraint(Sketcher.Constraint("Tangent", 5, 2, 6, 1))
sketch5.addConstraint(Sketcher.Constraint("Tangent", 6, 2, 7, 1))
sketch5.addConstraint(Sketcher.Constraint("Tangent", 7, 2, 0, 1))
sketch5.addConstraint(Sketcher.Constraint("Tangent", 8, 2, 9, 1))
sketch5.addConstraint(Sketcher.Constraint("Tangent", 9, 2, 10, 1))
sketch5.addConstraint(Sketcher.Constraint("Tangent", 10, 2, 11, 1))
sketch5.addConstraint(Sketcher.Constraint("Tangent", 11, 2, 12, 1))
sketch5.addConstraint(Sketcher.Constraint("Tangent", 12, 2, 13, 1))
sketch5.addConstraint(Sketcher.Constraint("Tangent", 13, 2, 14, 1))
sketch5.addConstraint(Sketcher.Constraint("Tangent", 14, 2, 15, 1))
sketch5.addConstraint(Sketcher.Constraint("Tangent", 15, 2, 8, 1))
sketch5.addConstraint(Sketcher.Constraint("Vertical", 1))
sketch5.addConstraint(Sketcher.Constraint("Horizontal", 3))
sketch5.addConstraint(Sketcher.Constraint("Vertical", 5))
sketch5.addConstraint(Sketcher.Constraint("Horizontal", 7))
sketch5.addConstraint(Sketcher.Constraint("Vertical", 9))
sketch5.addConstraint(Sketcher.Constraint("Horizontal", 11))
sketch5.addConstraint(Sketcher.Constraint("Vertical", 13))
sketch5.addConstraint(Sketcher.Constraint("Horizontal", 15))
sketch5.addConstraint(Sketcher.Constraint("Equal", 0, 2))
sketch5.addConstraint(Sketcher.Constraint("Equal", 2, 4))
sketch5.addConstraint(Sketcher.Constraint("Equal", 4, 6))
sketch5.addConstraint(Sketcher.Constraint("Equal", 6, 8))
sketch5.addConstraint(Sketcher.Constraint("Equal", 8, 10))
sketch5.addConstraint(Sketcher.Constraint("Equal", 10, 12))
sketch5.addConstraint(Sketcher.Constraint("Equal", 12, 14))
sketch5.addConstraint(Sketcher.Constraint("Horizontal", 6, 3, 8, 3))
sketch5.addConstraint(Sketcher.Constraint("Horizontal", 4, 3, 10, 3))
sketch5.addConstraint(Sketcher.Constraint("Equal", 7, 11))
sketch5.addConstraint(Sketcher.Constraint("Radius", 0, 0.999999))
sketch5.addConstraint(Sketcher.Constraint("DistanceY", 1, 2, 1, 1, 5.0))
sketch5.addConstraint(Sketcher.Constraint("DistanceX", 3, 1, 3, 2, 15.7))
sketch5.addConstraint(Sketcher.Constraint("DistanceX", 6, 3, 8, 3, 38.499999))
sketch5.addConstraint(Sketcher.Constraint("DistanceY", -1, 1, 0, 3, 139.855241))
sketch5.addConstraint(Sketcher.Constraint("DistanceX", -1, 1, 0, 3, 75.723693))
pocket2 = doc.addObject("PartDesign::Pocket", "Pocket001")
body.addObject(pocket2)
pocket2.Profile = sketch5
pocket2.Length = 5

# Sketch on XY plane
sketch6 = doc.addObject("Sketcher::SketchObject", "Sketch005")
body.addObject(sketch6)
sketch6.AttachmentSupport = (doc.XY_Plane, [""])
sketch6.MapMode = "FlatFace"
sketch6.addGeometry(Part.LineSegment(Vector(27, 3, 0), Vector(27, 85, 0)), False)
sketch6.addGeometry(Part.LineSegment(Vector(27, 85, 0), Vector(-23, 85, 0)), False)
sketch6.addGeometry(Part.LineSegment(Vector(-23, 85, 0), Vector(-23, -53, 0)), False)
sketch6.addGeometry(Part.LineSegment(Vector(-23, -53, 0), Vector(33, -53, 0)), False)
sketch6.addGeometry(Part.LineSegment(Vector(33, -53, 0), Vector(33, -3, 0)), False)
sketch6.addGeometry(Part.ArcOfCircle(Part.Circle(Vector(33, 3, 0), Vector(0, 0, 1), 6), math.radians(180), math.radians(270)), False)
sketch6.addConstraint(Sketcher.Constraint("Coincident", 0, 2, 1, 1))
sketch6.addConstraint(Sketcher.Constraint("Coincident", 1, 2, 2, 1))
sketch6.addConstraint(Sketcher.Constraint("Coincident", 2, 2, 3, 1))
sketch6.addConstraint(Sketcher.Constraint("Coincident", 3, 2, 4, 1))
sketch6.addConstraint(Sketcher.Constraint("Coincident", 4, 2, 5, 2))
sketch6.addConstraint(Sketcher.Constraint("Tangent", 5, 1, 0, 1))
sketch6.addConstraint(Sketcher.Constraint("Vertical", 0))
sketch6.addConstraint(Sketcher.Constraint("Horizontal", 1))
sketch6.addConstraint(Sketcher.Constraint("Vertical", 2))
sketch6.addConstraint(Sketcher.Constraint("Horizontal", 3))
sketch6.addConstraint(Sketcher.Constraint("Vertical", 4))
sketch6.addConstraint(Sketcher.Constraint("Vertical", 5, 3, 3, 2))
sketch6.addConstraint(Sketcher.Constraint("Equal", 1, 4))
sketch6.addConstraint(Sketcher.Constraint("Radius", 5, 5.999999))
sketch6.addConstraint(Sketcher.Constraint("DistanceX", 1, 2, 1, 1, 50.0))
sketch6.addConstraint(Sketcher.Constraint("DistanceY", -1, 1, 5, 3, 2.999999))
sketch6.addConstraint(Sketcher.Constraint("DistanceX", -1, 1, 5, 3, 32.729999))
sketch6.addConstraint(Sketcher.Constraint("DistanceY", 0, 1, 0, 2, 82.058845))
pocket3 = doc.addObject("PartDesign::Pocket", "Pocket002")
body.addObject(pocket3)
pocket3.Profile = sketch6
pocket3.Length = 20
pocket3.Midplane = True

# Sketch on XZ plane
sketch7 = doc.addObject("Sketcher::SketchObject", "Sketch006")
body.addObject(sketch7)
sketch7.AttachmentSupport = (doc.XZ_Plane, [""])
sketch7.MapMode = "FlatFace"
sketch7.AttachmentOffset = App.Placement(Vector(0, 0, -6), App.Rotation())
sketch7.addGeometry(Part.LineSegment(Vector(44.7, 0, 0), Vector(191.7, 0, 0)), False)
sketch7.addGeometry(Part.LineSegment(Vector(191.7, 0, 0), Vector(191.7, 13, 0)), False)
sketch7.addGeometry(Part.LineSegment(Vector(191.7, 13, 0), Vector(148.5, 13, 0)), False)
sketch7.addGeometry(Part.LineSegment(Vector(148.5, 13, 0), Vector(148.5, 40.7, 0)), False)
sketch7.addGeometry(Part.ArcOfCircle(Part.Circle(Vector(145.2, 40.7, 0), Vector(0, 0, 1), 3.3), math.radians(0), math.radians(90)), False)
sketch7.addGeometry(Part.LineSegment(Vector(145.2, 44, 0), Vector(67.2, 44, 0)), False)
sketch7.addGeometry(Part.ArcOfCircle(Part.Circle(Vector(67.2, 40.7, 0), Vector(0, 0, 1), 3.3), math.radians(90), math.radians(180)), False)
sketch7.addGeometry(Part.LineSegment(Vector(63.9, 40.7, 0), Vector(63.9, 13, 0)), False)
sketch7.addGeometry(Part.LineSegment(Vector(63.9, 13, 0), Vector(44.7, 13, 0)), False)
sketch7.addGeometry(Part.LineSegment(Vector(44.7, 13, 0), Vector(44.7, 0, 0)), False)
sketch7.addGeometry(Part.Circle(Vector(67.2, 7, 0), Vector(0, 0, 1), 1.1), False)
sketch7.addGeometry(Part.Circle(Vector(145.2, 7, 0), Vector(0, 0, 1), 1.1), False)
sketch7.addGeometry(Part.Circle(Vector(67.2, 40.7, 0), Vector(0, 0, 1), 1.1), False)
sketch7.addGeometry(Part.Circle(Vector(145.2, 40.7, 0), Vector(0, 0, 1), 1.1), False)
sketch7.addConstraint(Sketcher.Constraint("Coincident", 0, 2, 1, 1))
sketch7.addConstraint(Sketcher.Constraint("Coincident", 1, 2, 2, 1))
sketch7.addConstraint(Sketcher.Constraint("Coincident", 2, 2, 3, 1))
sketch7.addConstraint(Sketcher.Constraint("Tangent", 3, 2, 4, 1))
sketch7.addConstraint(Sketcher.Constraint("Tangent", 4, 2, 5, 1))
sketch7.addConstraint(Sketcher.Constraint("Tangent", 5, 2, 6, 1))
sketch7.addConstraint(Sketcher.Constraint("Tangent", 6, 2, 7, 1))
sketch7.addConstraint(Sketcher.Constraint("Coincident", 7, 2, 8, 1))
sketch7.addConstraint(Sketcher.Constraint("Coincident", 8, 2, 9, 1))
sketch7.addConstraint(Sketcher.Constraint("Coincident", 9, 2, 0, 1))
sketch7.addConstraint(Sketcher.Constraint("Horizontal", 0))
sketch7.addConstraint(Sketcher.Constraint("Vertical", 1))
sketch7.addConstraint(Sketcher.Constraint("Horizontal", 2))
sketch7.addConstraint(Sketcher.Constraint("Vertical", 3))
sketch7.addConstraint(Sketcher.Constraint("Horizontal", 5))
sketch7.addConstraint(Sketcher.Constraint("Vertical", 7))
sketch7.addConstraint(Sketcher.Constraint("Horizontal", 8))
sketch7.addConstraint(Sketcher.Constraint("Vertical", 9))
sketch7.addConstraint(Sketcher.Constraint("Coincident", 12, 3, 6, 3))
sketch7.addConstraint(Sketcher.Constraint("Coincident", 13, 3, 4, 3))
sketch7.addConstraint(Sketcher.Constraint("Equal", 4, 6))
sketch7.addConstraint(Sketcher.Constraint("Equal", 10, 11))
sketch7.addConstraint(Sketcher.Constraint("Equal", 11, 12))
sketch7.addConstraint(Sketcher.Constraint("Equal", 12, 13))
sketch7.addConstraint(Sketcher.Constraint("PointOnObject", 0, 2, -1))
sketch7.addConstraint(Sketcher.Constraint("Horizontal", 10, 3, 11, 3))
sketch7.addConstraint(Sketcher.Constraint("Horizontal", 2, 2, 7, 2))
sketch7.addConstraint(Sketcher.Constraint("Vertical", 6, 3, 10, 3))
sketch7.addConstraint(Sketcher.Constraint("Vertical", 4, 3, 11, 3))
sketch7.addConstraint(Sketcher.Constraint("Radius", 4, 3.300001))
sketch7.addConstraint(Sketcher.Constraint("Diameter", 10, 2.25))
sketch7.addConstraint(Sketcher.Constraint("DistanceX", 0, 1, 0, 2, 147.0))
sketch7.addConstraint(Sketcher.Constraint("DistanceX", 5, 2, 5, 1, 78.0))
sketch7.addConstraint(Sketcher.Constraint("DistanceY", 1, 1, 1, 2, 13.0))
sketch7.addConstraint(Sketcher.Constraint("DistanceX", -1, 1, 0, 2, 191.67))
sketch7.addConstraint(Sketcher.Constraint("DistanceY", 10, 3, 6, 3, 33.749999))
sketch7.addConstraint(Sketcher.Constraint("DistanceY", 3, 1, 3, 2, 27.730738))
sketch7.addConstraint(Sketcher.Constraint("DistanceX", 2, 2, 2, 1, 43.211537))
pad4 = doc.addObject("PartDesign::Pad", "Pad003")
body.addObject(pad4)
pad4.Profile = sketch7
pad4.Length = 6

# Sketch on XZ plane
sketch8 = doc.addObject("Sketcher::SketchObject", "Sketch007")
body.addObject(sketch8)
sketch8.AttachmentSupport = (doc.XZ_Plane, [""])
sketch8.MapMode = "FlatFace"
sketch8.AttachmentOffset = App.Placement(Vector(0, 0, -6), App.Rotation())
sketch8.addGeometry(Part.LineSegment(Vector(64.9, 13, 0), Vector(64.9, 37.4, 0)), False)
sketch8.addGeometry(Part.LineSegment(Vector(64.9, 37.4, 0), Vector(67.2, 37.4, 0)), False)
sketch8.addGeometry(Part.ArcOfCircle(Part.Circle(Vector(67.2, 40.7, 0), Vector(0, 0, 1), 3.3), math.radians(-90), math.radians(0)), False)
sketch8.addGeometry(Part.LineSegment(Vector(70.5, 40.7, 0), Vector(70.5, 43, 0)), False)
sketch8.addGeometry(Part.LineSegment(Vector(70.5, 43, 0), Vector(95.5, 43, 0)), False)
sketch8.addGeometry(Part.LineSegment(Vector(95.5, 43, 0), Vector(95.5, 13, 0)), False)
sketch8.addGeometry(Part.LineSegment(Vector(95.5, 13, 0), Vector(64.9, 13, 0)), False)
sketch8.addConstraint(Sketcher.Constraint("Coincident", 0, 2, 1, 1))
sketch8.addConstraint(Sketcher.Constraint("Tangent", 1, 2, 2, 1))
sketch8.addConstraint(Sketcher.Constraint("Tangent", 2, 2, 3, 1))
sketch8.addConstraint(Sketcher.Constraint("Coincident", 3, 2, 4, 1))
sketch8.addConstraint(Sketcher.Constraint("Coincident", 4, 2, 5, 1))
sketch8.addConstraint(Sketcher.Constraint("Coincident", 5, 2, 6, 1))
sketch8.addConstraint(Sketcher.Constraint("Coincident", 6, 2, 0, 1))
sketch8.addConstraint(Sketcher.Constraint("Vertical", 0))
sketch8.addConstraint(Sketcher.Constraint("Horizontal", 1))
sketch8.addConstraint(Sketcher.Constraint("Vertical", 3))
sketch8.addConstraint(Sketcher.Constraint("Horizontal", 4))
sketch8.addConstraint(Sketcher.Constraint("Vertical", 5))
sketch8.addConstraint(Sketcher.Constraint("Horizontal", 6))
sketch8.addConstraint(Sketcher.Constraint("Equal", 1, 3))
sketch8.addConstraint(Sketcher.Constraint("Radius", 2, 3.300001))
sketch8.addConstraint(Sketcher.Constraint("DistanceX", 4, 1, 4, 2, 25.0))
sketch8.addConstraint(Sketcher.Constraint("DistanceY", 5, 2, 5, 1, 30.0))
sketch8.addConstraint(Sketcher.Constraint("DistanceX", 1, 1, 1, 2, 2.299998))
sketch8.addConstraint(Sketcher.Constraint("DistanceX", -1, 1, 2, 3, 67.158462))
sketch8.addConstraint(Sketcher.Constraint("DistanceY", -1, 1, 2, 3, 40.730739))
pocket4 = doc.addObject("PartDesign::Pocket", "Pocket003")
body.addObject(pocket4)
pocket4.Profile = sketch8
pocket4.Length = 4
pocket4.Reversed = True

# Sketch on XY plane
sketch9 = doc.addObject("Sketcher::SketchObject", "Sketch008")
body.addObject(sketch9)
sketch9.AttachmentSupport = (doc.XY_Plane, [""])
sketch9.MapMode = "FlatFace"
sketch9.AttachmentOffset = App.Placement(Vector(0, 0, 16.25), App.Rotation())
sketch9.addGeometry(Part.Circle(Vector(51.7, 74.2, 0), Vector(0, 0, 1), 3), False)
sketch9.addConstraint(Sketcher.Constraint("Diameter", 0, 6.0))
sketch9.addConstraint(Sketcher.Constraint("DistanceX", -1, 1, 0, 3, 51.67))
sketch9.addConstraint(Sketcher.Constraint("DistanceY", -1, 1, 0, 3, 74.25))
pocket5 = doc.addObject("PartDesign::Pocket", "Pocket004")
body.addObject(pocket5)
pocket5.Profile = sketch9
pocket5.Length = 5
body2 = doc.addObject("PartDesign::Body", "Body001")
doc.recompute()

body.Placement = App.Placement(Vector(0, 0, -3.4), App.Rotation(Vector(0, 0, 1), 0))
boolean = doc.addObject("PartDesign::Boolean", "Boolean")
body2.addObject(boolean)
boolean.Type = "Fuse"
boolean.addObjects([body])

doc.recompute()
